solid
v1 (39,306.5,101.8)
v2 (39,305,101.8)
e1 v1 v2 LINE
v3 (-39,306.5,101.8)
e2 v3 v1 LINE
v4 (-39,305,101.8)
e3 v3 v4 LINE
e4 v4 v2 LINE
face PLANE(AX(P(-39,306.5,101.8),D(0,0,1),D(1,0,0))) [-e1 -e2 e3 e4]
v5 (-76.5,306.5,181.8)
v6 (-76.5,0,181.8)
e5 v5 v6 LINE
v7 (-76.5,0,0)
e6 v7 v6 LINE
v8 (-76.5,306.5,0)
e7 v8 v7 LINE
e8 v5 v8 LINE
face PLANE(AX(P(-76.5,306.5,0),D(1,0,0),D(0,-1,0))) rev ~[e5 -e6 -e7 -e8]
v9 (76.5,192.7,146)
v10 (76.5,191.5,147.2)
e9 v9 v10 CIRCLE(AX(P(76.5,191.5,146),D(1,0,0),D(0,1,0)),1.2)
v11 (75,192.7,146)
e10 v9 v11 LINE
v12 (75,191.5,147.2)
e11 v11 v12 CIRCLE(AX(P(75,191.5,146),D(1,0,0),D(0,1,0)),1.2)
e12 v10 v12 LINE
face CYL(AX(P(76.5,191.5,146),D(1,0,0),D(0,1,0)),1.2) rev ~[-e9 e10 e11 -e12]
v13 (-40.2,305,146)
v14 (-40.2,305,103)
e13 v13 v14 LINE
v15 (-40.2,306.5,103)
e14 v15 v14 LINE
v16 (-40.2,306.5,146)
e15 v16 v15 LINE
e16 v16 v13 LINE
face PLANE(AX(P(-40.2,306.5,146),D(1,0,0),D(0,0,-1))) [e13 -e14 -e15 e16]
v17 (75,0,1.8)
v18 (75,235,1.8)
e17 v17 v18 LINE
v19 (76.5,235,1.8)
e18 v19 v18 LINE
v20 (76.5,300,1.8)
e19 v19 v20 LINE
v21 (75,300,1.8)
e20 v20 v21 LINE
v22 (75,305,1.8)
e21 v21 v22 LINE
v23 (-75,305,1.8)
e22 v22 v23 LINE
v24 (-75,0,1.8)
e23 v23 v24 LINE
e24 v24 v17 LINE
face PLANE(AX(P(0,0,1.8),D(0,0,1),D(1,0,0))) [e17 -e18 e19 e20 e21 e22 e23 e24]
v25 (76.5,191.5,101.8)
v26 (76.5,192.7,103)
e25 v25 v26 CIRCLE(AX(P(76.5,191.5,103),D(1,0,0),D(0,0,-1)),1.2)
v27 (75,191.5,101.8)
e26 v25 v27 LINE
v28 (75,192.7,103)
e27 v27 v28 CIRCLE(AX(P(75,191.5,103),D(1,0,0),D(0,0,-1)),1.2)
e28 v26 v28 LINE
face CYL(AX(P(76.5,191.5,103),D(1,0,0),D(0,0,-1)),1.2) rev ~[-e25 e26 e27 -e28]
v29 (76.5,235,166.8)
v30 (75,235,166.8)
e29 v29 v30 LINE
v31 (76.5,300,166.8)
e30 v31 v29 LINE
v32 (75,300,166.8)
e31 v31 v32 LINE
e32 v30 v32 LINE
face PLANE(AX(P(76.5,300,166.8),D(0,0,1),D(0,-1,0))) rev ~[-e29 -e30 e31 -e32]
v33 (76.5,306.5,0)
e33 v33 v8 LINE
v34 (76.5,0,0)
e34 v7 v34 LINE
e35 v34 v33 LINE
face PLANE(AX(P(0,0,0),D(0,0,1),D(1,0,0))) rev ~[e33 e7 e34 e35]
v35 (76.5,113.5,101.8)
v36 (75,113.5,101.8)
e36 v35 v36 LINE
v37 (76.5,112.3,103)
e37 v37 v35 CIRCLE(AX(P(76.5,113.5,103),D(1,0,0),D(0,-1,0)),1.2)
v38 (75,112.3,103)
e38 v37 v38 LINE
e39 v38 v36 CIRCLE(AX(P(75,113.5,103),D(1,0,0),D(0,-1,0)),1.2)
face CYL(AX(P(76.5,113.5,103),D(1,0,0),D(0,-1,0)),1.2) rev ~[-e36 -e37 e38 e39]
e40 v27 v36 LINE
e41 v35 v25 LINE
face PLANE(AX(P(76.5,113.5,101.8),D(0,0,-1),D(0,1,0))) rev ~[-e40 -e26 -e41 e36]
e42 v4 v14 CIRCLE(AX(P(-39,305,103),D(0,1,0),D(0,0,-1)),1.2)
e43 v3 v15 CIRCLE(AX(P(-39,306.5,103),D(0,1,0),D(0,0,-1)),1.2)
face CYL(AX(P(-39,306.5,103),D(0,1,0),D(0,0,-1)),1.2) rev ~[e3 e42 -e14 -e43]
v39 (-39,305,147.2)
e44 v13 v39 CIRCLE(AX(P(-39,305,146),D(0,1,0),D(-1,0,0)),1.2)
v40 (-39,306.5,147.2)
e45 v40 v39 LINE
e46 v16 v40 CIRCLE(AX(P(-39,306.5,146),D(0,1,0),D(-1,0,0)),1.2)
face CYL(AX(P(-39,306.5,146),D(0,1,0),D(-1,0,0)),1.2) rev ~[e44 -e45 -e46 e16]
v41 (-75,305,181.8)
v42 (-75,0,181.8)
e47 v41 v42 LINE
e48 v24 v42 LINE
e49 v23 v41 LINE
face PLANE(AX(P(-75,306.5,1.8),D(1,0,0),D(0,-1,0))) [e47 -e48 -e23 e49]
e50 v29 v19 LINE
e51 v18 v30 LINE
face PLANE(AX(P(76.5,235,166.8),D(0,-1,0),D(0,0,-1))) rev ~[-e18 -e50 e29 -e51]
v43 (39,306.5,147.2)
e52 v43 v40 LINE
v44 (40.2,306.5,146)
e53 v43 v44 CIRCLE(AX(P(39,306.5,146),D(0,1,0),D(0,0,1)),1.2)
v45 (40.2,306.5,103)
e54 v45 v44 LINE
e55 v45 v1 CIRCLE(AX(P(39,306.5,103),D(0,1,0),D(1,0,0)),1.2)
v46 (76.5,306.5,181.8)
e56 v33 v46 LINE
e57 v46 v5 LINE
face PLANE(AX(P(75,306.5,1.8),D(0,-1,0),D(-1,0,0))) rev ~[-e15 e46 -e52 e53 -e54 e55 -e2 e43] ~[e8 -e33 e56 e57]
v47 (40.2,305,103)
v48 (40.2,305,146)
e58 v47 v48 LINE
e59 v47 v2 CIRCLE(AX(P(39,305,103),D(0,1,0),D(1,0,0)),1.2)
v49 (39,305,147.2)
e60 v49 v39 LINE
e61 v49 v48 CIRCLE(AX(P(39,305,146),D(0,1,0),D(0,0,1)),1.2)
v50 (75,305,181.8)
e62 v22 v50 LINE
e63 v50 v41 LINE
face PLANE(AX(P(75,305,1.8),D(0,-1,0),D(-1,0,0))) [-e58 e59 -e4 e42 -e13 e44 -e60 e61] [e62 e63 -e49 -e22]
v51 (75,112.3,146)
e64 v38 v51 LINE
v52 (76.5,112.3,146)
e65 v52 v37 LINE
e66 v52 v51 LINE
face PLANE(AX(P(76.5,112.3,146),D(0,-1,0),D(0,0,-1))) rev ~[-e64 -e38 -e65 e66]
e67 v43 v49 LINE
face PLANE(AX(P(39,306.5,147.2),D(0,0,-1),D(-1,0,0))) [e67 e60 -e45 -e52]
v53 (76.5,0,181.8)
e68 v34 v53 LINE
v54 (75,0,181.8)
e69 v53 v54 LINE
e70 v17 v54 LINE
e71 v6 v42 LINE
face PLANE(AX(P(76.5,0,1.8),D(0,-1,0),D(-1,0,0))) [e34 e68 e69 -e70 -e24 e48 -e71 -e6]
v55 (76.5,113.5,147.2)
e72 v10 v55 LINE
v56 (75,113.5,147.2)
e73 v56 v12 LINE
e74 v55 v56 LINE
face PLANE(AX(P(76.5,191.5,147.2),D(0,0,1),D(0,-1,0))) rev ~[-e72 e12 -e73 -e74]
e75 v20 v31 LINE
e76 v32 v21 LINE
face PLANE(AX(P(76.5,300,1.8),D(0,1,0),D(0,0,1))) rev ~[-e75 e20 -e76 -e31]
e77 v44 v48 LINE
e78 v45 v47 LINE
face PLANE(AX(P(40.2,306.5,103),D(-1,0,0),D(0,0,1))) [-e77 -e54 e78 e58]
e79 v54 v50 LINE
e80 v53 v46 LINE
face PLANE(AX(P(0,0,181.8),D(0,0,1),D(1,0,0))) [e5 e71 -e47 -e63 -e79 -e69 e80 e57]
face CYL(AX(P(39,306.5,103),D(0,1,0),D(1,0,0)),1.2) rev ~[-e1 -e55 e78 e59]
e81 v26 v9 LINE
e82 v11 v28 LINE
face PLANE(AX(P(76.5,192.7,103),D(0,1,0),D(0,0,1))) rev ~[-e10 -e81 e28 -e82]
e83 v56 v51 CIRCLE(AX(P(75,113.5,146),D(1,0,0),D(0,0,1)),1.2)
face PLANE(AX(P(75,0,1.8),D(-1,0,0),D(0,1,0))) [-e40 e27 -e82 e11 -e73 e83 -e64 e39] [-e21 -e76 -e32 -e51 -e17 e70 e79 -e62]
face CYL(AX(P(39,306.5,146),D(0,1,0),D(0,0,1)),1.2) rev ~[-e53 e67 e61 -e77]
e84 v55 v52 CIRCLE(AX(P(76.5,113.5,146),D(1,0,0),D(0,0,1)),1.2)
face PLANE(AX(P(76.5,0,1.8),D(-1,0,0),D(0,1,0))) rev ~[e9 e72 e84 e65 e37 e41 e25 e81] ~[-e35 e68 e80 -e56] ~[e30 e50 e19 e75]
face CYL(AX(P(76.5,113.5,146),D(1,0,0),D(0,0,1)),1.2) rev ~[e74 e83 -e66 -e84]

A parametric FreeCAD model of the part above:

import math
import FreeCAD as App
import Part
import Sketcher

V = App.Vector
Q = App.Units.Quantity

doc = App.newDocument("Part")
body = doc.addObject("PartDesign::Body", "Body")

# Sketch on XY plane
sketch1 = doc.addObject("Sketcher::SketchObject", "Sketch")
body.addObject(sketch1)
sketch1.AttachmentSupport = (doc.XY_Plane, [""])
sketch1.MapMode = "FlatFace"
sketch1.addGeometry([
    Part.LineSegment(V(-76, 306, 0), V(-76, 0, 0)),
    Part.LineSegment(V(-76, 0, 0), V(76, 0, 0)),
    Part.LineSegment(V(76, 0, 0), V(76, 306, 0)),
    Part.LineSegment(V(76, 306, 0), V(-76, 306, 0)),
], False)
sketch1.addConstraint([
    Sketcher.Constraint("Coincident", 0, 2, 1, 1),
    Sketcher.Constraint("Coincident", 1, 2, 2, 1),
    Sketcher.Constraint("Coincident", 2, 2, 3, 1),
    Sketcher.Constraint("Coincident", 3, 2, 0, 1),
    Sketcher.Constraint("Vertical", 0),
    Sketcher.Constraint("Horizontal", 1),
    Sketcher.Constraint("Vertical", 2),
    Sketcher.Constraint("Horizontal", 3),
    Sketcher.Constraint("Symmetric", 0, 2, 1, 2, -1, 1),
    Sketcher.Constraint("DistanceX", 1, 1, 1, 2, Q("153 mm")),
    Sketcher.Constraint("DistanceY", 0, 2, 0, 1, Q("306.5 mm")),
])
pad1 = doc.addObject("PartDesign::Pad", "Pad")
body.addObject(pad1)
pad1.Profile = sketch1
pad1.Length = 1.8

# Sketch on XY plane
sketch2 = doc.addObject("Sketcher::SketchObject", "Sketch001")
body.addObject(sketch2)
sketch2.AttachmentSupport = (doc.XY_Plane, [""])
sketch2.MapMode = "FlatFace"
sketch2.AttachmentOffset = App.Placement(V(0, 0, 1.8), App.Rotation())
sketch2.addGeometry([
    Part.LineSegment(V(-75, 306.5, 0), V(-76.5, 306.5, 0)),
    Part.LineSegment(V(-76.5, 306.5, 0), V(-76.5, 0, 0)),
    Part.LineSegment(V(-76.5, 0, 0), V(-75, 0, 0)),
    Part.LineSegment(V(-75, 0, 0), V(-75, 306.5, 0)),
], False)
sketch2.addConstraint([
    Sketcher.Constraint("Coincident", 0, 2, 1, 1),
    Sketcher.Constraint("Coincident", 1, 2, 2, 1),
    Sketcher.Constraint("Coincident", 2, 2, 3, 1),
    Sketcher.Constraint("Coincident", 3, 2, 0, 1),
    Sketcher.Constraint("Horizontal", 0),
    Sketcher.Constraint("Vertical", 1),
    Sketcher.Constraint("Horizontal", 2),
    Sketcher.Constraint("Vertical", 3),
    Sketcher.Constraint("PointOnObject", 1, 2, -1),
    Sketcher.Constraint("DistanceX", 0, 2, 0, 1, Q("1.5 mm")),
    Sketcher.Constraint("DistanceY", 1, 2, 1, 1, Q("306.5 mm")),
    Sketcher.Constraint("DistanceX", 2, 2, -1, 1, Q("75 mm")),
])
pad2 = doc.addObject("PartDesign::Pad", "Pad001")
body.addObject(pad2)
pad2.Profile = sketch2
pad2.Length = 180

# Sketch on XY plane
sketch3 = doc.addObject("Sketcher::SketchObject", "Sketch002")
body.addObject(sketch3)
sketch3.AttachmentSupport = (doc.XY_Plane, [""])
sketch3.MapMode = "FlatFace"
sketch3.AttachmentOffset = App.Placement(V(0, 0, 1.8), App.Rotation())
sketch3.addGeometry([
    Part.LineSegment(V(75, 0, 0), V(76.5, 0, 0)),
    Part.LineSegment(V(76.5, 0, 0), V(76.5, 306.5, 0)),
    Part.LineSegment(V(76.5, 306.5, 0), V(75, 306.5, 0)),
    Part.LineSegment(V(75, 306.5, 0), V(75, 0, 0)),
], False)
sketch3.addConstraint([
    Sketcher.Constraint("Coincident", 0, 2, 1, 1),
    Sketcher.Constraint("Coincident", 1, 2, 2, 1),
    Sketcher.Constraint("Coincident", 2, 2, 3, 1),
    Sketcher.Constraint("Coincident", 3, 2, 0, 1),
    Sketcher.Constraint("Horizontal", 0),
    Sketcher.Constraint("Vertical", 1),
    Sketcher.Constraint("Horizontal", 2),
    Sketcher.Constraint("Vertical", 3),
    Sketcher.Constraint("PointOnObject", 0, 2, -1),
    Sketcher.Constraint("DistanceX", 0, 1, 0, 2, Q("1.5 mm")),
    Sketcher.Constraint("DistanceY", 1, 1, 1, 2, Q("306.5 mm")),
    Sketcher.Constraint("DistanceX", -1, 1, 2, 2, Q("75 mm")),
])
pad3 = doc.addObject("PartDesign::Pad", "Pad002")
body.addObject(pad3)
pad3.Profile = sketch3
pad3.Length = 180

# Sketch on XY plane
sketch4 = doc.addObject("Sketcher::SketchObject", "Sketch003")
body.addObject(sketch4)
sketch4.AttachmentSupport = (doc.XY_Plane, [""])
sketch4.MapMode = "FlatFace"
sketch4.AttachmentOffset = App.Placement(V(0, 0, 1.8), App.Rotation())
sketch4.addGeometry([
    Part.LineSegment(V(75, 305, 0), V(75, 306.5, 0)),
    Part.LineSegment(V(75, 306.5, 0), V(-75, 306.5, 0)),
    Part.LineSegment(V(-75, 306.5, 0), V(-75, 305, 0)),
    Part.LineSegment(V(-75, 305, 0), V(75, 305, 0)),
], False)
sketch4.addConstraint([
    Sketcher.Constraint("Coincident", 0, 2, 1, 1),
    Sketcher.Constraint("Coincident", 1, 2, 2, 1),
    Sketcher.Constraint("Coincident", 2, 2, 3, 1),
    Sketcher.Constraint("Coincident", 3, 2, 0, 1),
    Sketcher.Constraint("Vertical", 0),
    Sketcher.Constraint("Horizontal", 1),
    Sketcher.Constraint("Vertical", 2),
    Sketcher.Constraint("Horizontal", 3),
    Sketcher.Constraint("DistanceY", 0, 1, 0, 2, Q("1.5 mm")),
    Sketcher.Constraint("DistanceX", 1, 2, 1, 1, Q("150 mm")),
    Sketcher.Constraint("DistanceX", -1, 1, 0, 2, Q("75 mm")),
    Sketcher.Constraint("DistanceY", -1, 1, 2, 2, Q("305 mm")),
])
pad4 = doc.addObject("PartDesign::Pad", "Pad003")
body.addObject(pad4)
pad4.Profile = sketch4
pad4.Length = 180

# Sketch on XZ plane
sketch5 = doc.addObject("Sketcher::SketchObject", "Sketch004")
body.addObject(sketch5)
sketch5.AttachmentSupport = (doc.XZ_Plane, [""])
sketch5.MapMode = "FlatFace"
sketch5.AttachmentOffset = App.Placement(V(0, 0, -306.5), App.Rotation())
sketch5.addGeometry([
    Part.LineSegment(V(-39, 147.2, 0), V(39, 147.2, 0)),  # 0
    Part.ArcOfCircle(Part.Circle(V(39, 146, 0), V(0, 0, 1), 1.2), math.radians(0), math.radians(90)),  # 1
    Part.LineSegment(V(40.2, 146, 0), V(40.2, 103, 0)),  # 2
    Part.ArcOfCircle(Part.Circle(V(39, 103, 0), V(0, 0, 1), 1.2), math.radians(-90), math.radians(0)),  # 3
    Part.LineSegment(V(39, 101.8, 0), V(-39, 101.8, 0)),  # 4
    Part.ArcOfCircle(Part.Circle(V(-39, 103, 0), V(0, 0, 1), 1.2), math.radians(180), math.radians(270)),  # 5
    Part.LineSegment(V(-40.2, 103, 0), V(-40.2, 146, 0)),  # 6
    Part.ArcOfCircle(Part.Circle(V(-39, 146, 0), V(0, 0, 1), 1.2), math.radians(90), math.radians(180)),  # 7
], False)
sketch5.addConstraint([
    Sketcher.Constraint("Tangent", 0, 2, 1, 2),
    Sketcher.Constraint("Tangent", 1, 1, 2, 1),
    Sketcher.Constraint("Tangent", 2, 2, 3, 2),
    Sketcher.Constraint("Tangent", 3, 1, 4, 1),
    Sketcher.Constraint("Tangent", 4, 2, 5, 2),
    Sketcher.Constraint("Tangent", 5, 1, 6, 1),
    Sketcher.Constraint("Tangent", 6, 2, 7, 2),
    Sketcher.Constraint("Tangent", 7, 1, 0, 1),
    Sketcher.Constraint("Horizontal", 0),
    Sketcher.Constraint("Vertical", 2),
    Sketcher.Constraint("Horizontal", 4),
    Sketcher.Constraint("Vertical", 6),
    Sketcher.Constraint("Equal", 1, 3),
    Sketcher.Constraint("Equal", 3, 5),
    Sketcher.Constraint("Equal", 5, 7),
    Sketcher.Constraint("Radius", 1, Q("1.2 mm")),
    Sketcher.Constraint("DistanceY", 3, 1, 0, 2, Q("45.4 mm")),
    Sketcher.Constraint("DistanceX", 0, 1, 0, 2, Q("78 mm")),
    Sketcher.Constraint("DistanceX", -1, 1, 1, 3, Q("39 mm")),
    Sketcher.Constraint("DistanceY", -1, 1, 1, 3, Q("146 mm")),
])
pocket1 = doc.addObject("PartDesign::Pocket", "Pocket")
body.addObject(pocket1)
pocket1.Profile = sketch5
pocket1.Type = "UpToFirst"
pocket1.Reversed = True

# Sketch on YZ plane
sketch6 = doc.addObject("Sketcher::SketchObject", "Sketch005")
body.addObject(sketch6)
sketch6.AttachmentSupport = (doc.YZ_Plane, [""])
sketch6.MapMode = "FlatFace"
sketch6.AttachmentOffset = App.Placement(V(0, 0, 76.5), App.Rotation())
sketch6.addGeometry([
    Part.ArcOfCircle(Part.Circle(V(113.5, 146, 0), V(0, 0, 1), 1.2), math.radians(90), math.radians(180)),  # 0
    Part.LineSegment(V(112.3, 146, 0), V(112.3, 103, 0)),  # 1
    Part.ArcOfCircle(Part.Circle(V(113.5, 103, 0), V(0, 0, 1), 1.2), math.radians(180), math.radians(270)),  # 2
    Part.LineSegment(V(113.5, 101.8, 0), V(191.5, 101.8, 0)),  # 3
    Part.ArcOfCircle(Part.Circle(V(191.5, 103, 0), V(0, 0, 1), 1.2), math.radians(-90), math.radians(0)),  # 4
    Part.LineSegment(V(192.7, 103, 0), V(192.7, 146, 0)),  # 5
    Part.ArcOfCircle(Part.Circle(V(191.5, 146, 0), V(0, 0, 1), 1.2), math.radians(0), math.radians(90)),  # 6
    Part.LineSegment(V(191.5, 147.2, 0), V(113.5, 147.2, 0)),  # 7
], False)
sketch6.addConstraint([
    Sketcher.Constraint("Tangent", 0, 2, 1, 1),
    Sketcher.Constraint("Tangent", 1, 2, 2, 1),
    Sketcher.Constraint("Tangent", 2, 2, 3, 1),
    Sketcher.Constraint("Tangent", 3, 2, 4, 1),
    Sketcher.Constraint("Tangent", 4, 2, 5, 1),
    Sketcher.Constraint("Tangent", 5, 2, 6, 1),
    Sketcher.Constraint("Tangent", 6, 2, 7, 1),
    Sketcher.Constraint("Tangent", 7, 2, 0, 1),
    Sketcher.Constraint("Vertical", 1),
    Sketcher.Constraint("Horizontal", 3),
    Sketcher.Constraint("Vertical", 5),
    Sketcher.Constraint("Horizontal", 7),
    Sketcher.Constraint("Equal", 0, 2),
    Sketcher.Constraint("Equal", 2, 4),
    Sketcher.Constraint("Equal", 4, 6),
    Sketcher.Constraint("Radius", 0, Q("1.2 mm")),
    Sketcher.Constraint("DistanceY", 3, 2, 6, 2, Q("45.4 mm")),
    Sketcher.Constraint("DistanceX", 3, 1, 3, 2, Q("78 mm")),
    Sketcher.Constraint("DistanceY", -1, 1, 0, 3, Q("146 mm")),
    Sketcher.Constraint("DistanceX", -1, 1, 0, 3, Q("113.5 mm")),
])
pocket2 = doc.addObject("PartDesign::Pocket", "Pocket001")
body.addObject(pocket2)
pocket2.Profile = sketch6
pocket2.Length = 10

# Sketch on YZ plane
sketch7 = doc.addObject("Sketcher::SketchObject", "Sketch006")
body.addObject(sketch7)
sketch7.AttachmentSupport = (doc.YZ_Plane, [""])
sketch7.MapMode = "FlatFace"
sketch7.AttachmentOffset = App.Placement(V(0, 0, 76.5), App.Rotation())
sketch7.addGeometry([
    Part.LineSegment(V(300, 167, 0), V(235, 167, 0)),
    Part.LineSegment(V(235, 167, 0), V(235, 2, 0)),
    Part.LineSegment(V(235, 2, 0), V(300, 2, 0)),
    Part.LineSegment(V(300, 2, 0), V(300, 167, 0)),
], False)
sketch7.addConstraint([
    Sketcher.Constraint("Coincident", 0, 2, 1, 1),
    Sketcher.Constraint("Coincident", 1, 2, 2, 1),
    Sketcher.Constraint("Coincident", 2, 2, 3, 1),
    Sketcher.Constraint("Coincident", 3, 2, 0, 1),
    Sketcher.Constraint("Horizontal", 0),
    Sketcher.Constraint("Vertical", 1),
    Sketcher.Constraint("Horizontal", 2),
    Sketcher.Constraint("Vertical", 3),
    Sketcher.Constraint("DistanceX", 0, 2, 0, 1, Q("65 mm")),
    Sketcher.Constraint("DistanceY", 1, 2, 1, 1, Q("165 mm")),
    Sketcher.Constraint("DistanceX", -1, 1, 0, 2, Q("235 mm")),
    Sketcher.Constraint("DistanceY", -1, 1, 0, 2, Q("166.8 mm")),
])
pocket3 = doc.addObject("PartDesign::Pocket", "Pocket002")
body.addObject(pocket3)
pocket3.Profile = sketch7
pocket3.Length = 10

doc.recompute()
